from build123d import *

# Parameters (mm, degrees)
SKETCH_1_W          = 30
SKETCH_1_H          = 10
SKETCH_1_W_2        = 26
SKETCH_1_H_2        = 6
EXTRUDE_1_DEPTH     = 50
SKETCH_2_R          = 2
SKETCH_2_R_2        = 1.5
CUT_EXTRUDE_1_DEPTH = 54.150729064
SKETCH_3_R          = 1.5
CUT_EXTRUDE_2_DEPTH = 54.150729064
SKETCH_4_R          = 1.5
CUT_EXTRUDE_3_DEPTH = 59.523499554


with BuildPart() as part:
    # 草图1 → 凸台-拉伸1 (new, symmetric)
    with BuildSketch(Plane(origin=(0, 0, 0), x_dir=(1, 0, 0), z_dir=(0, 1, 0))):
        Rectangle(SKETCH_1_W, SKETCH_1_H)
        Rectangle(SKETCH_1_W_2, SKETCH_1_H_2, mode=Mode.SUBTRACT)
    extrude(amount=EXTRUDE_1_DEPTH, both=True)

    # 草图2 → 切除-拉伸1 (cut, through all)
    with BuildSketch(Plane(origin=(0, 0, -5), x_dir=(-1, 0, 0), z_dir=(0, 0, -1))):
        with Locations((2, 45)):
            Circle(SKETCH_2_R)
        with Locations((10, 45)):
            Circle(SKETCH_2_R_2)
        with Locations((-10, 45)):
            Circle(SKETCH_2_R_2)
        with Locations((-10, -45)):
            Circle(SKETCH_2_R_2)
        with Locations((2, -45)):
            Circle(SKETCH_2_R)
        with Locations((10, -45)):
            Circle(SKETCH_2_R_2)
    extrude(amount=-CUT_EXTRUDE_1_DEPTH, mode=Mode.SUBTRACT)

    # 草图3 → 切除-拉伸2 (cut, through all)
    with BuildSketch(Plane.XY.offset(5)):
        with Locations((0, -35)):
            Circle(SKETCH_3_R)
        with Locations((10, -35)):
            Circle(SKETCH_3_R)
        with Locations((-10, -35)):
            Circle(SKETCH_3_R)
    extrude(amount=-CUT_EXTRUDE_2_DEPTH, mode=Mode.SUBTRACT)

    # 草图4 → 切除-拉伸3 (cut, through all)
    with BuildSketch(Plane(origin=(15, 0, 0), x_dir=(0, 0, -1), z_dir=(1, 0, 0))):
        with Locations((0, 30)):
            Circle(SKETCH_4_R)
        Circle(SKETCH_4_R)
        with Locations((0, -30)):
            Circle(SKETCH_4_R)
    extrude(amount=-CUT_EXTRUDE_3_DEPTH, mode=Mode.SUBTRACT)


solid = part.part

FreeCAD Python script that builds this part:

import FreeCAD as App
import Part
import Sketcher

V = App.Vector
Q = App.Units.Quantity

doc = App.newDocument("Part")
body = doc.addObject("PartDesign::Body", "Body")

# Sketch on XZ plane
sketch1 = body.newObject("Sketcher::SketchObject", "Sketch")
sketch1.AttachmentSupport = (doc.getObject("XZ_Plane"), [""])
sketch1.MapMode = "FlatFace"
sketch1.addGeometry(Part.LineSegment(V(-15, -5, 0), V(-15, 5, 0)), False)
sketch1.addGeometry(Part.LineSegment(V(-15, 5, 0), V(15, 5, 0)), False)
sketch1.addGeometry(Part.LineSegment(V(15, 5, 0), V(15, -5, 0)), False)
sketch1.addGeometry(Part.LineSegment(V(15, -5, 0), V(-15, -5, 0)), False)
sketch1.addGeometry(Part.LineSegment(V(13, 3, 0), V(-13, 3, 0)), False)
sketch1.addGeometry(Part.LineSegment(V(-13, 3, 0), V(-13, -3, 0)), False)
sketch1.addGeometry(Part.LineSegment(V(-13, -3, 0), V(13, -3, 0)), False)
sketch1.addGeometry(Part.LineSegment(V(13, -3, 0), V(13, 3, 0)), False)
sketch1.addConstraint(Sketcher.Constraint("Coincident", 0, 2, 1, 1))
sketch1.addConstraint(Sketcher.Constraint("Coincident", 1, 2, 2, 1))
sketch1.addConstraint(Sketcher.Constraint("Coincident", 2, 2, 3, 1))
sketch1.addConstraint(Sketcher.Constraint("Coincident", 3, 2, 0, 1))
sketch1.addConstraint(Sketcher.Constraint("Coincident", 4, 2, 5, 1))
sketch1.addConstraint(Sketcher.Constraint("Coincident", 5, 2, 6, 1))
sketch1.addConstraint(Sketcher.Constraint("Coincident", 6, 2, 7, 1))
sketch1.addConstraint(Sketcher.Constraint("Coincident", 7, 2, 4, 1))
sketch1.addConstraint(Sketcher.Constraint("Vertical", 0))
sketch1.addConstraint(Sketcher.Constraint("Horizontal", 1))
sketch1.addConstraint(Sketcher.Constraint("Vertical", 2))
sketch1.addConstraint(Sketcher.Constraint("Horizontal", 3))
sketch1.addConstraint(Sketcher.Constraint("Horizontal", 4))
sketch1.addConstraint(Sketcher.Constraint("Vertical", 5))
sketch1.addConstraint(Sketcher.Constraint("Horizontal", 6))
sketch1.addConstraint(Sketcher.Constraint("Vertical", 7))
sketch1.addConstraint(Sketcher.Constraint("Symmetric", 0, 2, 2, 2, -1, 1))
sketch1.addConstraint(Sketcher.Constraint("Symmetric", 4, 2, 6, 2, -1, 1))
sketch1.addConstraint(Sketcher.Constraint("DistanceX", 1, 1, 1, 2, Q("30 mm")))
sketch1.addConstraint(Sketcher.Constraint("DistanceX", 4, 2, 4, 1, Q("26 mm")))
sketch1.addConstraint(Sketcher.Constraint("DistanceY", 0, 1, 0, 2, Q("10 mm")))
sketch1.addConstraint(Sketcher.Constraint("DistanceY", 5, 2, 5, 1, Q("6 mm")))
pad1 = body.newObject("PartDesign::Pad", "Pad")
pad1.Profile = sketch1
pad1.Length = 100
pad1.Midplane = True

# Sketch on XY plane
sketch2 = body.newObject("Sketcher::SketchObject", "Sketch001")
sketch2.AttachmentSupport = (doc.getObject("XY_Plane"), [""])
sketch2.MapMode = "FlatFace"
sketch2.AttachmentOffset = App.Placement(V(0, 0, -5), App.Rotation())
sketch2.addGeometry(Part.Circle(V(-2, 45, 0), V(0, 0, 1), 2), False)
sketch2.addGeometry(Part.Circle(V(-10, 45, 0), V(0, 0, 1), 1.5), False)
sketch2.addGeometry(Part.Circle(V(10, 45, 0), V(0, 0, 1), 1.5), False)
sketch2.addGeometry(Part.Circle(V(10, -45, 0), V(0, 0, 1), 1.5), False)
sketch2.addGeometry(Part.Circle(V(-2, -45, 0), V(0, 0, 1), 2), False)
sketch2.addGeometry(Part.Circle(V(-10, -45, 0), V(0, 0, 1), 1.5), False)
sketch2.addConstraint(Sketcher.Constraint("Equal", 1, 2))
sketch2.addConstraint(Sketcher.Constraint("Equal", 2, 3))
sketch2.addConstraint(Sketcher.Constraint("Equal", 0, 4))
sketch2.addConstraint(Sketcher.Constraint("Equal", 3, 5))
sketch2.addConstraint(Sketcher.Constraint("Symmetric", 1, 3, 3, 3, -1, 1))
sketch2.addConstraint(Sketcher.Constraint("Symmetric", 2, 3, 5, 3, -1, 1))
sketch2.addConstraint(Sketcher.Constraint("Symmetric", 1, 3, 2, 3, -2))
sketch2.addConstraint(Sketcher.Constraint("Symmetric", 0, 3, 4, 3, -1))
sketch2.addConstraint(Sketcher.Constraint("Horizontal", 0, 3, 1, 3))
sketch2.addConstraint(Sketcher.Constraint("Diameter", 0, Q("4 mm")))
sketch2.addConstraint(Sketcher.Constraint("Diameter", 1, Q("3 mm")))
sketch2.addConstraint(Sketcher.Constraint("DistanceX", 0, 3, -1, 1, Q("2 mm")))
sketch2.addConstraint(Sketcher.Constraint("DistanceY", -1, 1, 0, 3, Q("45 mm")))
sketch2.addConstraint(Sketcher.Constraint("DistanceX", 1, 3, -1, 1, Q("10 mm")))
pocket1 = body.newObject("PartDesign::Pocket", "Pocket")
pocket1.Profile = sketch2
pocket1.Type = "ThroughAll"
pocket1.Reversed = True

# Sketch on XY plane
sketch3 = body.newObject("Sketcher::SketchObject", "Sketch002")
sketch3.AttachmentSupport = (doc.getObject("XY_Plane"), [""])
sketch3.MapMode = "FlatFace"
sketch3.AttachmentOffset = App.Placement(V(0, 0, 5), App.Rotation())
sketch3.addGeometry(Part.Circle(V(0, -35, 0), V(0, 0, 1), 1.5), False)
sketch3.addGeometry(Part.Circle(V(10, -35, 0), V(0, 0, 1), 1.5), False)
sketch3.addGeometry(Part.Circle(V(-10, -35, 0), V(0, 0, 1), 1.5), False)
sketch3.addConstraint(Sketcher.Constraint("Equal", 0, 1))
sketch3.addConstraint(Sketcher.Constraint("Equal", 1, 2))
sketch3.addConstraint(Sketcher.Constraint("Symmetric", 1, 3, 2, 3, -2))
sketch3.addConstraint(Sketcher.Constraint("PointOnObject", 0, 3, -2))
sketch3.addConstraint(Sketcher.Constraint("Horizontal", 0, 3, 1, 3))
sketch3.addConstraint(Sketcher.Constraint("Diameter", 0, Q("3 mm")))
sketch3.addConstraint(Sketcher.Constraint("DistanceY", 0, 3, -1, 1, Q("35 mm")))
sketch3.addConstraint(Sketcher.Constraint("DistanceX", -1, 1, 1, 3, Q("10 mm")))
pocket2 = body.newObject("PartDesign::Pocket", "Pocket001")
pocket2.Profile = sketch3
pocket2.Type = "ThroughAll"

# Sketch on YZ plane
sketch4 = body.newObject("Sketcher::SketchObject", "Sketch003")
sketch4.AttachmentSupport = (doc.getObject("YZ_Plane"), [""])
sketch4.MapMode = "FlatFace"
sketch4.AttachmentOffset = App.Placement(V(0, 0, 15), App.Rotation())
sketch4.addGeometry(Part.Circle(V(30, 0, 0), V(0, 0, 1), 1.5), False)
sketch4.addGeometry(Part.Circle(V(0, 0, 0), V(0, 0, 1), 1.5), False)
sketch4.addGeometry(Part.Circle(V(-30, 0, 0), V(0, 0, 1), 1.5), False)
sketch4.addConstraint(Sketcher.Constraint("Coincident", 1, 3, -1, 1))
sketch4.addConstraint(Sketcher.Constraint("Equal", 0, 1))
sketch4.addConstraint(Sketcher.Constraint("Equal", 1, 2))
sketch4.addConstraint(Sketcher.Constraint("Symmetric", 0, 3, 2, 3, -1, 1))
sketch4.addConstraint(Sketcher.Constraint("PointOnObject", 0, 3, -1))
sketch4.addConstraint(Sketcher.Constraint("Diameter", 0, Q("3 mm")))
sketch4.addConstraint(Sketcher.Constraint("DistanceX", -1, 1, 0, 3, Q("30 mm")))
pocket3 = body.newObject("PartDesign::Pocket", "Pocket002")
pocket3.Profile = sketch4
pocket3.Type = "ThroughAll"

doc.recompute()
